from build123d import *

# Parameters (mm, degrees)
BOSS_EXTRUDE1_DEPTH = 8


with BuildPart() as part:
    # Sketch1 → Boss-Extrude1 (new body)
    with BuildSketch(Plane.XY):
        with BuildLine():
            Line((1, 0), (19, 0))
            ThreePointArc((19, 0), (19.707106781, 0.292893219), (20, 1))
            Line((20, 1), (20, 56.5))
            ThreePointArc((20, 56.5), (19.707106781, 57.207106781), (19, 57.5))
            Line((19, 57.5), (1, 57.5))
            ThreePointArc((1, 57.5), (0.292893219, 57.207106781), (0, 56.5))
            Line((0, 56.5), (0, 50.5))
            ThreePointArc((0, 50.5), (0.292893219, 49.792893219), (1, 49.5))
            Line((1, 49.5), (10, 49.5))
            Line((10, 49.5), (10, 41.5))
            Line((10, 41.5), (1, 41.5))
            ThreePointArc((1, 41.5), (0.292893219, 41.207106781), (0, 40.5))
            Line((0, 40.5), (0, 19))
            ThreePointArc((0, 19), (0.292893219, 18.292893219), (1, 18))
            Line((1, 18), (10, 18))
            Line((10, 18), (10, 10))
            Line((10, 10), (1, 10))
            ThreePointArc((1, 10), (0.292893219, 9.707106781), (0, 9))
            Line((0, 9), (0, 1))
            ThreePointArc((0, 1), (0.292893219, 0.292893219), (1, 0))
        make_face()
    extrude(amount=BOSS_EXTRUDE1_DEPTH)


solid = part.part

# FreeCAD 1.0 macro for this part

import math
import FreeCAD as App
import Part
import Sketcher
from FreeCAD import Vector

doc = App.newDocument("Part")
body = doc.addObject("PartDesign::Body", "Body")

# Sketch on XY plane
sketch1 = body.newObject("Sketcher::SketchObject", "Sketch")
sketch1.AttachmentSupport = (doc.getObject("XY_Plane"), [""])
sketch1.MapMode = "FlatFace"
sketch1.addGeometry(Part.LineSegment(Vector(1, 0, 0), Vector(19, 0, 0)), False)
sketch1.addGeometry(Part.ArcOfCircle(Part.Circle(Vector(19, 1, 0), Vector(0, 0, 1), 1), math.radians(-90), math.radians(0)), False)
sketch1.addGeometry(Part.LineSegment(Vector(20, 1, 0), Vector(20, 56.5, 0)), False)
sketch1.addGeometry(Part.ArcOfCircle(Part.Circle(Vector(19, 56.5, 0), Vector(0, 0, 1), 1), math.radians(0), math.radians(90)), False)
sketch1.addGeometry(Part.LineSegment(Vector(19, 57.5, 0), Vector(1, 57.5, 0)), False)
sketch1.addGeometry(Part.ArcOfCircle(Part.Circle(Vector(1, 56.5, 0), Vector(0, 0, 1), 1), math.radians(90), math.radians(180)), False)
sketch1.addGeometry(Part.LineSegment(Vector(0, 56.5, 0), Vector(0, 50.5, 0)), False)
sketch1.addGeometry(Part.ArcOfCircle(Part.Circle(Vector(1, 50.5, 0), Vector(0, 0, 1), 1), math.radians(-180), math.radians(-90)), False)
sketch1.addGeometry(Part.LineSegment(Vector(1, 49.5, 0), Vector(10, 49.5, 0)), False)
sketch1.addGeometry(Part.LineSegment(Vector(10, 49.5, 0), Vector(10, 41.5, 0)), False)
sketch1.addGeometry(Part.LineSegment(Vector(10, 41.5, 0), Vector(1, 41.5, 0)), False)
sketch1.addGeometry(Part.ArcOfCircle(Part.Circle(Vector(1, 40.5, 0), Vector(0, 0, 1), 1), math.radians(90), math.radians(180)), False)
sketch1.addGeometry(Part.LineSegment(Vector(0, 40.5, 0), Vector(0, 19, 0)), False)
sketch1.addGeometry(Part.ArcOfCircle(Part.Circle(Vector(1, 19, 0), Vector(0, 0, 1), 1), math.radians(-180), math.radians(-90)), False)
sketch1.addGeometry(Part.LineSegment(Vector(1, 18, 0), Vector(10, 18, 0)), False)
sketch1.addGeometry(Part.LineSegment(Vector(10, 18, 0), Vector(10, 10, 0)), False)
sketch1.addGeometry(Part.LineSegment(Vector(10, 10, 0), Vector(1, 10, 0)), False)
sketch1.addGeometry(Part.ArcOfCircle(Part.Circle(Vector(1, 9, 0), Vector(0, 0, 1), 1), math.radians(90), math.radians(180)), False)
sketch1.addGeometry(Part.LineSegment(Vector(0, 9, 0), Vector(0, 1, 0)), False)
sketch1.addGeometry(Part.ArcOfCircle(Part.Circle(Vector(1, 1, 0), Vector(0, 0, 1), 1), math.radians(-180), math.radians(-90)), False)
sketch1.addConstraint(Sketcher.Constraint("Tangent", 0, 2, 1, 1))
sketch1.addConstraint(Sketcher.Constraint("Tangent", 1, 2, 2, 1))
sketch1.addConstraint(Sketcher.Constraint("Tangent", 2, 2, 3, 1))
sketch1.addConstraint(Sketcher.Constraint("Tangent", 3, 2, 4, 1))
sketch1.addConstraint(Sketcher.Constraint("Tangent", 4, 2, 5, 1))
sketch1.addConstraint(Sketcher.Constraint("Tangent", 5, 2, 6, 1))
sketch1.addConstraint(Sketcher.Constraint("Tangent", 6, 2, 7, 1))
sketch1.addConstraint(Sketcher.Constraint("Tangent", 7, 2, 8, 1))
sketch1.addConstraint(Sketcher.Constraint("Coincident", 8, 2, 9, 1))
sketch1.addConstraint(Sketcher.Constraint("Coincident", 9, 2, 10, 1))
sketch1.addConstraint(Sketcher.Constraint("Tangent", 10, 2, 11, 1))
sketch1.addConstraint(Sketcher.Constraint("Tangent", 11, 2, 12, 1))
sketch1.addConstraint(Sketcher.Constraint("Tangent", 12, 2, 13, 1))
sketch1.addConstraint(Sketcher.Constraint("Tangent", 13, 2, 14, 1))
sketch1.addConstraint(Sketcher.Constraint("Coincident", 14, 2, 15, 1))
sketch1.addConstraint(Sketcher.Constraint("Coincident", 15, 2, 16, 1))
sketch1.addConstraint(Sketcher.Constraint("Tangent", 16, 2, 17, 1))
sketch1.addConstraint(Sketcher.Constraint("Tangent", 17, 2, 18, 1))
sketch1.addConstraint(Sketcher.Constraint("Tangent", 18, 2, 19, 1))
sketch1.addConstraint(Sketcher.Constraint("Tangent", 19, 2, 0, 1))
sketch1.addConstraint(Sketcher.Constraint("Horizontal", 0))
sketch1.addConstraint(Sketcher.Constraint("Vertical", 2))
sketch1.addConstraint(Sketcher.Constraint("Horizontal", 4))
sketch1.addConstraint(Sketcher.Constraint("Vertical", 6))
sketch1.addConstraint(Sketcher.Constraint("Horizontal", 8))
sketch1.addConstraint(Sketcher.Constraint("Vertical", 9))
sketch1.addConstraint(Sketcher.Constraint("Horizontal", 10))
sketch1.addConstraint(Sketcher.Constraint("Vertical", 12))
sketch1.addConstraint(Sketcher.Constraint("Horizontal", 14))
sketch1.addConstraint(Sketcher.Constraint("Vertical", 15))
sketch1.addConstraint(Sketcher.Constraint("Horizontal", 16))
sketch1.addConstraint(Sketcher.Constraint("Vertical", 18))
sketch1.addConstraint(Sketcher.Constraint("Equal", 1, 3))
sketch1.addConstraint(Sketcher.Constraint("Equal", 3, 5))
sketch1.addConstraint(Sketcher.Constraint("Equal", 5, 7))
sketch1.addConstraint(Sketcher.Constraint("Equal", 7, 11))
sketch1.addConstraint(Sketcher.Constraint("Equal", 11, 13))
sketch1.addConstraint(Sketcher.Constraint("Equal", 13, 17))
sketch1.addConstraint(Sketcher.Constraint("Equal", 17, 19))
sketch1.addConstraint(Sketcher.Constraint("PointOnObject", 0, 2, -1))
sketch1.addConstraint(Sketcher.Constraint("PointOnObject", 5, 2, -2))
sketch1.addConstraint(Sketcher.Constraint("PointOnObject", 11, 2, -2))
sketch1.addConstraint(Sketcher.Constraint("PointOnObject", 17, 2, -2))
sketch1.addConstraint(Sketcher.Constraint("Vertical", 9, 2, 14, 2))
sketch1.addConstraint(Sketcher.Constraint("Equal", 9, 15))
sketch1.addConstraint(Sketcher.Constraint("Equal", 15, 18))
sketch1.addConstraint(Sketcher.Constraint("Radius", 1, 1.0))
sketch1.addConstraint(Sketcher.Constraint("DistanceX", 0, 1, 0, 2, 18.0))
sketch1.addConstraint(Sketcher.Constraint("DistanceX", 8, 1, 8, 2, 9.0))
sketch1.addConstraint(Sketcher.Constraint("DistanceY", 6, 2, 6, 1, 6.0))
sketch1.addConstraint(Sketcher.Constraint("DistanceY", 9, 2, 9, 1, 8.0))
sketch1.addConstraint(Sketcher.Constraint("DistanceY", 2, 1, 2, 2, 55.5))
pad1 = body.newObject("PartDesign::Pad", "Pad")
pad1.Profile = sketch1
pad1.Length = 8

doc.recompute()
